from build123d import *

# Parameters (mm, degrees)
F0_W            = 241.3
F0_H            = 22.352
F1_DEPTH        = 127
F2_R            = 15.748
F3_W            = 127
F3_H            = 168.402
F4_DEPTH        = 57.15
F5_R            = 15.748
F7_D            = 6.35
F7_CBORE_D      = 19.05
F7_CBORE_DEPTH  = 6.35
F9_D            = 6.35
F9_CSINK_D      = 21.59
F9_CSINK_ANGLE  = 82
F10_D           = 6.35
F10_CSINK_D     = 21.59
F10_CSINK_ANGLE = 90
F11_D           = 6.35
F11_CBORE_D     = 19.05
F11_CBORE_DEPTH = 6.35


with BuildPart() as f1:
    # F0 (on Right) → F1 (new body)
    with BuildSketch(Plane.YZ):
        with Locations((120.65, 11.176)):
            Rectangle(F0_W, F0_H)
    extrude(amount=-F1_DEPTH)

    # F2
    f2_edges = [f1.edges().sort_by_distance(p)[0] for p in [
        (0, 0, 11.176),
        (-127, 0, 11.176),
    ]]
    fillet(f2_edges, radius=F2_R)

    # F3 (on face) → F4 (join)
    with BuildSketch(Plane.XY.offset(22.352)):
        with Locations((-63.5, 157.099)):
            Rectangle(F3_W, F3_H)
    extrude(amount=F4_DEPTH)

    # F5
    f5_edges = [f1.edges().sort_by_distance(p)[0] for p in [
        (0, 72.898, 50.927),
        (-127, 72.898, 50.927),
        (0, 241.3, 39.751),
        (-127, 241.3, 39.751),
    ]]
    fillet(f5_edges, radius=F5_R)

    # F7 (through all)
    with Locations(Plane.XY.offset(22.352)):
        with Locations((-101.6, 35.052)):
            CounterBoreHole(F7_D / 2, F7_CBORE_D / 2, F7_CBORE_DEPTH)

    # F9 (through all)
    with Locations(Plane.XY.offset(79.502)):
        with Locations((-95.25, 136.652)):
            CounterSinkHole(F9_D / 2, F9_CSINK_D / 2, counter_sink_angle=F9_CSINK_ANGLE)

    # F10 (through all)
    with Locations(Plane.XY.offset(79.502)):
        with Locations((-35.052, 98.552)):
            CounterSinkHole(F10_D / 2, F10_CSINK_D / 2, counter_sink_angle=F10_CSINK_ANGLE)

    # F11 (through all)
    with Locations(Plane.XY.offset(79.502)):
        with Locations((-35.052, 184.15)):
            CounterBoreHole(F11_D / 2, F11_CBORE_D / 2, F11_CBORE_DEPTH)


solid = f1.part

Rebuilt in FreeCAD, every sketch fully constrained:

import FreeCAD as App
import Part
import Sketcher

V = App.Vector
Q = App.Units.Quantity


def edges_at(feature, points):
    """Names of the edges that pass closest to the given points."""
    edges = feature.Shape.Edges
    near = lambda p: min(range(len(edges)), key=lambda i: edges[i].distToShape(Part.Vertex(*p))[0])
    return sorted({f"Edge{near(p) + 1}" for p in points})

doc = App.newDocument("Part")
body = doc.addObject("PartDesign::Body", "Body")

sketch1 = body.newObject("Sketcher::SketchObject", "Sketch")
sketch1.AttachmentSupport = (doc.getObject("YZ_Plane"), [""])
sketch1.MapMode = "FlatFace"
sketch1.addGeometry(Part.LineSegment(V(0, 22, 0), V(0, 0, 0)), False)
sketch1.addGeometry(Part.LineSegment(V(0, 0, 0), V(241, 0, 0)), False)
sketch1.addGeometry(Part.LineSegment(V(241, 0, 0), V(241, 22, 0)), False)
sketch1.addGeometry(Part.LineSegment(V(241, 22, 0), V(0, 22, 0)), False)
sketch1.addConstraint(Sketcher.Constraint("Coincident", 0, 2, 1, 1))
sketch1.addConstraint(Sketcher.Constraint("Coincident", 1, 2, 2, 1))
sketch1.addConstraint(Sketcher.Constraint("Coincident", 2, 2, 3, 1))
sketch1.addConstraint(Sketcher.Constraint("Coincident", 3, 2, 0, 1))
sketch1.addConstraint(Sketcher.Constraint("Vertical", 0))
sketch1.addConstraint(Sketcher.Constraint("Horizontal", 1))
sketch1.addConstraint(Sketcher.Constraint("Vertical", 2))
sketch1.addConstraint(Sketcher.Constraint("Horizontal", 3))
sketch1.addConstraint(Sketcher.Constraint("Coincident", 0, 2, -1, 1))
sketch1.addConstraint(Sketcher.Constraint("DistanceX", 1, 1, 1, 2, Q("9.5 in")))
sketch1.addConstraint(Sketcher.Constraint("DistanceY", 0, 2, 0, 1, Q("0.88 in")))
pad1 = body.newObject("PartDesign::Pad", "Pad")
pad1.Profile = sketch1
pad1.Length = Q("5 in")
pad1.Reversed = True
doc.recompute()

fillet = body.newObject("PartDesign::Fillet", "Fillet")
fillet.Base = (pad1, edges_at(pad1, [(0, 0, 11.176), (-127, 0, 11.176)]))
fillet.Radius = Q("0.62 in")

sketch2 = body.newObject("Sketcher::SketchObject", "Sketch001")
sketch2.AttachmentSupport = (doc.getObject("XY_Plane"), [""])
sketch2.MapMode = "FlatFace"
sketch2.AttachmentOffset = App.Placement(V(0, 0, 0.88 * 25.4), App.Rotation())
sketch2.addGeometry(Part.LineSegment(V(-127, 241, 0), V(-127, 73, 0)), False)
sketch2.addGeometry(Part.LineSegment(V(-127, 73, 0), V(0, 73, 0)), False)
sketch2.addGeometry(Part.LineSegment(V(0, 73, 0), V(0, 241, 0)), False)
sketch2.addGeometry(Part.LineSegment(V(0, 241, 0), V(-127, 241, 0)), False)
sketch2.addConstraint(Sketcher.Constraint("Coincident", 0, 2, 1, 1))
sketch2.addConstraint(Sketcher.Constraint("Coincident", 1, 2, 2, 1))
sketch2.addConstraint(Sketcher.Constraint("Coincident", 2, 2, 3, 1))
sketch2.addConstraint(Sketcher.Constraint("Coincident", 3, 2, 0, 1))
sketch2.addConstraint(Sketcher.Constraint("Vertical", 0))
sketch2.addConstraint(Sketcher.Constraint("Horizontal", 1))
sketch2.addConstraint(Sketcher.Constraint("Vertical", 2))
sketch2.addConstraint(Sketcher.Constraint("Horizontal", 3))
sketch2.addConstraint(Sketcher.Constraint("PointOnObject", 1, 2, -2))
sketch2.addConstraint(Sketcher.Constraint("DistanceX", 1, 1, 1, 2, Q("5 in")))
sketch2.addConstraint(Sketcher.Constraint("DistanceY", 0, 2, 0, 1, Q("6.63 in")))
sketch2.addConstraint(Sketcher.Constraint("DistanceY", -1, 1, 2, 2, Q("9.5 in")))
pad2 = body.newObject("PartDesign::Pad", "Pad001")
pad2.Profile = sketch2
pad2.Length = Q("2.25 in")
doc.recompute()

fillet2 = body.newObject("PartDesign::Fillet", "Fillet001")
fillet2.Base = (pad2, edges_at(pad2, [
    (0, 72.898, 50.927),
    (-127, 72.898, 50.927),
    (0, 241.3, 39.751),
    (-127, 241.3, 39.751),
]))
fillet2.Radius = Q("0.62 in")

sketch3 = body.newObject("Sketcher::SketchObject", "Sketch002")
sketch3.AttachmentSupport = (doc.getObject("XY_Plane"), [""])
sketch3.MapMode = "FlatFace"
sketch3.AttachmentOffset = App.Placement(V(0, 0, 0.88 * 25.4), App.Rotation())
sketch3.addGeometry(Part.Circle(V(-101.6, 35.1, 0), V(0, 0, 1), 3.2), False)
sketch3.addConstraint(Sketcher.Constraint("Diameter", 0, Q("0.25 in")))
sketch3.addConstraint(Sketcher.Constraint("DistanceX", 0, 3, -1, 1, Q("4 in")))
sketch3.addConstraint(Sketcher.Constraint("DistanceY", -1, 1, 0, 3, Q("1.38 in")))
doc.recompute()
hole = body.newObject("PartDesign::Hole", "Hole")
hole.Profile = sketch3
hole.ThreadType = "None"
hole.Diameter = Q("0.25 in")
hole.DepthType = "ThroughAll"
hole.HoleCutType = "Counterbore"
hole.HoleCutDiameter = Q("0.75 in")
hole.HoleCutDepth = Q("0.25 in")

sketch4 = body.newObject("Sketcher::SketchObject", "Sketch003")
sketch4.AttachmentSupport = (doc.getObject("XY_Plane"), [""])
sketch4.MapMode = "FlatFace"
sketch4.AttachmentOffset = App.Placement(V(0, 0, 3.13 * 25.4), App.Rotation())
sketch4.addGeometry(Part.Circle(V(-95.2, 136.7, 0), V(0, 0, 1), 3.2), False)
sketch4.addConstraint(Sketcher.Constraint("Diameter", 0, Q("0.25 in")))
sketch4.addConstraint(Sketcher.Constraint("DistanceX", 0, 3, -1, 1, Q("3.75 in")))
sketch4.addConstraint(Sketcher.Constraint("DistanceY", -1, 1, 0, 3, Q("5.38 in")))
doc.recompute()
hole2 = body.newObject("PartDesign::Hole", "Hole001")
hole2.Profile = sketch4
hole2.ThreadType = "None"
hole2.Diameter = Q("0.25 in")
hole2.DepthType = "ThroughAll"
hole2.HoleCutType = "Countersink"
hole2.HoleCutDiameter = Q("0.85 in")
hole2.HoleCutCountersinkAngle = 82

sketch5 = body.newObject("Sketcher::SketchObject", "Sketch004")
sketch5.AttachmentSupport = (doc.getObject("XY_Plane"), [""])
sketch5.MapMode = "FlatFace"
sketch5.AttachmentOffset = App.Placement(V(0, 0, 3.13 * 25.4), App.Rotation())
sketch5.addGeometry(Part.Circle(V(-35.1, 98.6, 0), V(0, 0, 1), 3.2), False)
sketch5.addConstraint(Sketcher.Constraint("Diameter", 0, Q("0.25 in")))
sketch5.addConstraint(Sketcher.Constraint("DistanceX", 0, 3, -1, 1, Q("1.38 in")))
sketch5.addConstraint(Sketcher.Constraint("DistanceY", -1, 1, 0, 3, Q("3.88 in")))
doc.recompute()
hole3 = body.newObject("PartDesign::Hole", "Hole002")
hole3.Profile = sketch5
hole3.ThreadType = "None"
hole3.Diameter = Q("0.25 in")
hole3.DepthType = "ThroughAll"
hole3.HoleCutType = "Countersink"
hole3.HoleCutDiameter = Q("0.85 in")
hole3.HoleCutCountersinkAngle = 90

sketch6 = body.newObject("Sketcher::SketchObject", "Sketch005")
sketch6.AttachmentSupport = (doc.getObject("XY_Plane"), [""])
sketch6.MapMode = "FlatFace"
sketch6.AttachmentOffset = App.Placement(V(0, 0, 3.13 * 25.4), App.Rotation())
sketch6.addGeometry(Part.Circle(V(-35.1, 184.2, 0), V(0, 0, 1), 3.2), False)
sketch6.addConstraint(Sketcher.Constraint("Diameter", 0, Q("0.25 in")))
sketch6.addConstraint(Sketcher.Constraint("DistanceX", 0, 3, -1, 1, Q("1.38 in")))
sketch6.addConstraint(Sketcher.Constraint("DistanceY", -1, 1, 0, 3, Q("7.25 in")))
doc.recompute()
hole4 = body.newObject("PartDesign::Hole", "Hole003")
hole4.Profile = sketch6
hole4.ThreadType = "None"
hole4.Diameter = Q("0.25 in")
hole4.DepthType = "ThroughAll"
hole4.HoleCutType = "Counterbore"
hole4.HoleCutDiameter = Q("0.75 in")
hole4.HoleCutDepth = Q("0.25 in")

doc.recompute()
